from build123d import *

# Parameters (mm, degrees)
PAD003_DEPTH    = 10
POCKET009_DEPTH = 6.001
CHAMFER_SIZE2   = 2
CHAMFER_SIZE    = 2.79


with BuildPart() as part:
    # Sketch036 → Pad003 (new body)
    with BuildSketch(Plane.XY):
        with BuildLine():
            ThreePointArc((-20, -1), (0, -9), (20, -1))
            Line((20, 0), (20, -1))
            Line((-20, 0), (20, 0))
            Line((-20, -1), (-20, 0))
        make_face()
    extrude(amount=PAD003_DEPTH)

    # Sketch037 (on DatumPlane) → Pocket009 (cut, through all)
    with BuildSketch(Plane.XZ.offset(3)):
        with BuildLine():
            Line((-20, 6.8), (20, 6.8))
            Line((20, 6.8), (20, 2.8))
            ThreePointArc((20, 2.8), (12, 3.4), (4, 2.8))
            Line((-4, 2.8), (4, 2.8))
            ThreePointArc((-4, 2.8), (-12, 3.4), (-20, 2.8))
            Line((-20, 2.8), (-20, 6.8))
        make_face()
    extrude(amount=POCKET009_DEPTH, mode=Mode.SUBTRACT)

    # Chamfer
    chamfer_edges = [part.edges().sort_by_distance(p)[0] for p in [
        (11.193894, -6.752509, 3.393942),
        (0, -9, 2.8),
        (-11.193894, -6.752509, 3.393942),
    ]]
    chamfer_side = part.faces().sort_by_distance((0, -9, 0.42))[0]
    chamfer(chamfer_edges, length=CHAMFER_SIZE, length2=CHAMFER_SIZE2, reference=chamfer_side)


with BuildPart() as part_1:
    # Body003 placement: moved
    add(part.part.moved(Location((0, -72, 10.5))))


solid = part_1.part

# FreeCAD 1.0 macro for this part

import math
import FreeCAD as App
import Part
import Sketcher
from FreeCAD import Vector
Q = App.Units.Quantity


def edges_at(feature, points):
    """Names of the edges that pass closest to the given points."""
    edges = feature.Shape.Edges
    near = lambda p: min(range(len(edges)), key=lambda i: edges[i].distToShape(Part.Vertex(*p))[0])
    return sorted({f"Edge{near(p) + 1}" for p in points})

doc = App.newDocument("Part")
body = doc.addObject("PartDesign::Body", "Body")

sketch1 = body.newObject("Sketcher::SketchObject", "Sketch")
sketch1.AttachmentSupport = (doc.getObject("XY_Plane"), [""])
sketch1.MapMode = "FlatFace"
sketch1.addGeometry(Part.ArcOfCircle(Part.Circle(Vector(0, 20, 0), Vector(0, 0, 1), 29), math.radians(-134), math.radians(-46)), False)
sketch1.addGeometry(Part.LineSegment(Vector(20, -1, 0), Vector(20, 0, 0)), False)
sketch1.addGeometry(Part.LineSegment(Vector(20, 0, 0), Vector(-20, 0, 0)), False)
sketch1.addGeometry(Part.LineSegment(Vector(-20, 0, 0), Vector(-20, -1, 0)), False)
sketch1.addConstraint(Sketcher.Constraint("Coincident", 0, 2, 1, 1))
sketch1.addConstraint(Sketcher.Constraint("Coincident", 1, 2, 2, 1))
sketch1.addConstraint(Sketcher.Constraint("Coincident", 2, 2, 3, 1))
sketch1.addConstraint(Sketcher.Constraint("Coincident", 3, 2, 0, 1))
sketch1.addConstraint(Sketcher.Constraint("Vertical", 1))
sketch1.addConstraint(Sketcher.Constraint("Horizontal", 2))
sketch1.addConstraint(Sketcher.Constraint("Vertical", 3))
sketch1.addConstraint(Sketcher.Constraint("Symmetric", 1, 2, 2, 2, -1, 1))
sketch1.addConstraint(Sketcher.Constraint("PointOnObject", 0, 3, -2))
sketch1.addConstraint(Sketcher.Constraint("Radius", 0, Q("29 mm")))
sketch1.addConstraint(Sketcher.Constraint("DistanceX", 2, 2, 2, 1, Q("40 mm")))
sketch1.addConstraint(Sketcher.Constraint("DistanceY", 1, 1, 1, 2, Q("1 mm")))
pad1 = body.newObject("PartDesign::Pad", "Pad")
pad1.Profile = sketch1
pad1.Length = 10

sketch2 = body.newObject("Sketcher::SketchObject", "Sketch001")
sketch2.AttachmentSupport = (doc.getObject("XZ_Plane"), [""])
sketch2.MapMode = "FlatFace"
sketch2.AttachmentOffset = App.Placement(Vector(0, 0, 3), App.Rotation())
sketch2.addGeometry(Part.LineSegment(Vector(20, 6.8, 0), Vector(-20, 6.8, 0)), False)
sketch2.addGeometry(Part.LineSegment(Vector(-20, 6.8, 0), Vector(-20, 2.8, 0)), False)
sketch2.addGeometry(Part.ArcOfCircle(Part.Circle(Vector(-12, -50.2, 0), Vector(0, 0, 1), 53.6), math.radians(81.42), math.radians(98.58)), False)
sketch2.addGeometry(Part.LineSegment(Vector(-4, 2.8, 0), Vector(4, 2.8, 0)), False)
sketch2.addGeometry(Part.ArcOfCircle(Part.Circle(Vector(12, -50.2, 0), Vector(0, 0, 1), 53.6), math.radians(81.42), math.radians(98.58)), False)
sketch2.addGeometry(Part.LineSegment(Vector(20, 2.8, 0), Vector(20, 6.8, 0)), False)
sketch2.addConstraint(Sketcher.Constraint("Coincident", 0, 2, 1, 1))
sketch2.addConstraint(Sketcher.Constraint("Coincident", 1, 2, 2, 2))
sketch2.addConstraint(Sketcher.Constraint("Coincident", 2, 1, 3, 1))
sketch2.addConstraint(Sketcher.Constraint("Coincident", 3, 2, 4, 2))
sketch2.addConstraint(Sketcher.Constraint("Coincident", 4, 1, 5, 1))
sketch2.addConstraint(Sketcher.Constraint("Coincident", 5, 2, 0, 1))
sketch2.addConstraint(Sketcher.Constraint("Horizontal", 0))
sketch2.addConstraint(Sketcher.Constraint("Vertical", 1))
sketch2.addConstraint(Sketcher.Constraint("Horizontal", 3))
sketch2.addConstraint(Sketcher.Constraint("Vertical", 5))
sketch2.addConstraint(Sketcher.Constraint("Equal", 2, 4))
sketch2.addConstraint(Sketcher.Constraint("Symmetric", 2, 3, 4, 3, -2))
sketch2.addConstraint(Sketcher.Constraint("Horizontal", 1, 2, 2, 1))
sketch2.addConstraint(Sketcher.Constraint("Horizontal", 3, 2, 4, 1))
sketch2.addConstraint(Sketcher.Constraint("DistanceX", 0, 2, 0, 1, Q("40 mm")))
sketch2.addConstraint(Sketcher.Constraint("DistanceX", 3, 1, 3, 2, Q("8 mm")))
sketch2.addConstraint(Sketcher.Constraint("DistanceY", 1, 2, 1, 1, Q("4 mm")))
sketch2.addConstraint(Sketcher.Constraint("DistanceY", -1, 1, 0, 2, Q("6.8 mm")))
sketch2.addConstraint(Sketcher.Constraint("Radius", 2, Q("53.633333 mm")))
pocket1 = body.newObject("PartDesign::Pocket", "Pocket")
pocket1.Profile = sketch2
pocket1.Type = "ThroughAll"
pocket1.Reversed = True
doc.recompute()

chamfer = body.newObject("PartDesign::Chamfer", "Chamfer")
chamfer.Base = (pocket1, edges_at(pocket1, [(11.194, -6.753, 3.394), (0, -9, 2.8), (-11.194, -6.753, 3.394)]))
chamfer.ChamferType = "Two distances"
chamfer.Size = 2.79
chamfer.Size2 = 2
body2 = doc.addObject("PartDesign::Body", "Body001")
doc.recompute()

body.Placement = App.Placement(Vector(0, -72, 10.5), App.Rotation(Vector(0, 0, 1), 0))
boolean = body2.newObject("PartDesign::Boolean", "Boolean")
boolean.Type = "Fuse"
boolean.addObjects([body])

doc.recompute()
